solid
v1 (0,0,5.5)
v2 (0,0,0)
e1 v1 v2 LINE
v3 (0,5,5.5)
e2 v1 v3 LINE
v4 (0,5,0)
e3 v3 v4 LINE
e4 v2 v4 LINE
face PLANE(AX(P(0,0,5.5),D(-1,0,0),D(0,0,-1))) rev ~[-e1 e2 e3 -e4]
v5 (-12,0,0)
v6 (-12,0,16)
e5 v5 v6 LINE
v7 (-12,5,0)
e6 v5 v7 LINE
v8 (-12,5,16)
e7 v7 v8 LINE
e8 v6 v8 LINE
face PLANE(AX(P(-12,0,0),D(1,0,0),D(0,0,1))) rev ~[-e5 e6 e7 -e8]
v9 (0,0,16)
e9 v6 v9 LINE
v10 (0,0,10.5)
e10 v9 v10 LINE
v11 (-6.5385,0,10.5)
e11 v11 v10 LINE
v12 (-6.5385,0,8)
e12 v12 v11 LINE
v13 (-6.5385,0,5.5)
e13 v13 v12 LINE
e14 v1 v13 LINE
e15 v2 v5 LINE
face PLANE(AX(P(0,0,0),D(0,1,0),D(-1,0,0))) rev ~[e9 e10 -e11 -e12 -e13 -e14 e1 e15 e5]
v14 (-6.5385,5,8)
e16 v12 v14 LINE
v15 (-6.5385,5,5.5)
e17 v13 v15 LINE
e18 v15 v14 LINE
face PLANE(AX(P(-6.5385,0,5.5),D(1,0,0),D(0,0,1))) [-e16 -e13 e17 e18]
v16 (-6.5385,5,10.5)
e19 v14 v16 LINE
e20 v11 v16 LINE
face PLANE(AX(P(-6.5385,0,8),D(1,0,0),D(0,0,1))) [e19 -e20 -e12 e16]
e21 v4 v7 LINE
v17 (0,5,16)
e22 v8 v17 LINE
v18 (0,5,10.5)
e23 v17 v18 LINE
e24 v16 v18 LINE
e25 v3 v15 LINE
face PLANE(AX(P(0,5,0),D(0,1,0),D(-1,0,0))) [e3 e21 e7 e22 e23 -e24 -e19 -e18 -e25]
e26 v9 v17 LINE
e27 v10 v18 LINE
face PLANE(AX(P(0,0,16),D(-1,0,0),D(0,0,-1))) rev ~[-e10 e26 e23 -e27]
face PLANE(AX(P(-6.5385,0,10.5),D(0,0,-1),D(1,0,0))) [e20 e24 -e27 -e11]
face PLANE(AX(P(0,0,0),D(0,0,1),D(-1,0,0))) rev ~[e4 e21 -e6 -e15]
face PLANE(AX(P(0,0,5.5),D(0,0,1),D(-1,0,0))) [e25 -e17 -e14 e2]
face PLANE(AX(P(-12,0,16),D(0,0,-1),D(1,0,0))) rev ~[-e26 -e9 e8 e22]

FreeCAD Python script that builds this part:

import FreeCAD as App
import Part
import Sketcher

V = App.Vector


def add_polygon(sketch, points):
    """Adds a closed chain of lines whose ends are joined by coincident constraints."""
    first, n = sketch.GeometryCount, len(points)
    for a, b in zip(points, points[1:] + points[:1]):
        sketch.addGeometry(Part.LineSegment(App.Vector(*a, 0), App.Vector(*b, 0)), False)
    for i in range(n):
        sketch.addConstraint(Sketcher.Constraint("Coincident", first + i, 2, first + (i + 1) % n, 1))

doc = App.newDocument("Part")
params = doc.addObject("Spreadsheet::Sheet", "Params")
for row, (alias, value) in enumerate([
    ("sketch1_width", "12 mm"),
    ("sketch1_height", "16 mm"),
    ("sketch1_height2", "5 mm"),
    ("pad1_length", "5 mm"),
], start=1):
    params.set(f"A{row}", alias)
    params.set(f"B{row}", "=" + value)
    params.setAlias(f"B{row}", alias)

body = doc.addObject("PartDesign::Body", "Body")

# Sketch on XZ plane
sketch1 = body.newObject("Sketcher::SketchObject", "Sketch")
sketch1.AttachmentSupport = (doc.getObject("XZ_Plane"), [""])
sketch1.MapMode = "FlatFace"
add_polygon(sketch1, [(0, 6), (0, 0), (-12, 0), (-12, 16), (0, 16), (0, 10), (-7, 10), (-7, 6)])  # lines 0-7
sketch1.addConstraint(Sketcher.Constraint("Vertical", 0))
sketch1.addConstraint(Sketcher.Constraint("Horizontal", 1))
sketch1.addConstraint(Sketcher.Constraint("Vertical", 2))
sketch1.addConstraint(Sketcher.Constraint("Horizontal", 3))
sketch1.addConstraint(Sketcher.Constraint("Vertical", 4))
sketch1.addConstraint(Sketcher.Constraint("Horizontal", 5))
sketch1.addConstraint(Sketcher.Constraint("Vertical", 6))
sketch1.addConstraint(Sketcher.Constraint("Horizontal", 7))
sketch1.addConstraint(Sketcher.Constraint("Coincident", 0, 2, -1, 1))
sketch1.addConstraint(Sketcher.Constraint("PointOnObject", 3, 2, -2))
sketch1.addConstraint(Sketcher.Constraint("Equal", 0, 4))
sketch1.addConstraint(Sketcher.Constraint("DistanceX", 1, 2, 1, 1, 12.0))
sketch1.addConstraint(Sketcher.Constraint("DistanceY", 2, 1, 2, 2, 16.0))
sketch1.addConstraint(Sketcher.Constraint("DistanceY", 6, 2, 6, 1, 5.0))
sketch1.addConstraint(Sketcher.Constraint("DistanceX", 5, 2, 5, 1, 6.5385))
sketch1.setExpression("Constraints[19]", "Params.sketch1_width")
sketch1.setExpression("Constraints[20]", "Params.sketch1_height")
sketch1.setExpression("Constraints[21]", "Params.sketch1_height2")
pad1 = body.newObject("PartDesign::Pad", "Pad")
pad1.Profile = sketch1
pad1.setExpression("Length", "Params.pad1_length")
pad1.Reversed = True

doc.recompute()
